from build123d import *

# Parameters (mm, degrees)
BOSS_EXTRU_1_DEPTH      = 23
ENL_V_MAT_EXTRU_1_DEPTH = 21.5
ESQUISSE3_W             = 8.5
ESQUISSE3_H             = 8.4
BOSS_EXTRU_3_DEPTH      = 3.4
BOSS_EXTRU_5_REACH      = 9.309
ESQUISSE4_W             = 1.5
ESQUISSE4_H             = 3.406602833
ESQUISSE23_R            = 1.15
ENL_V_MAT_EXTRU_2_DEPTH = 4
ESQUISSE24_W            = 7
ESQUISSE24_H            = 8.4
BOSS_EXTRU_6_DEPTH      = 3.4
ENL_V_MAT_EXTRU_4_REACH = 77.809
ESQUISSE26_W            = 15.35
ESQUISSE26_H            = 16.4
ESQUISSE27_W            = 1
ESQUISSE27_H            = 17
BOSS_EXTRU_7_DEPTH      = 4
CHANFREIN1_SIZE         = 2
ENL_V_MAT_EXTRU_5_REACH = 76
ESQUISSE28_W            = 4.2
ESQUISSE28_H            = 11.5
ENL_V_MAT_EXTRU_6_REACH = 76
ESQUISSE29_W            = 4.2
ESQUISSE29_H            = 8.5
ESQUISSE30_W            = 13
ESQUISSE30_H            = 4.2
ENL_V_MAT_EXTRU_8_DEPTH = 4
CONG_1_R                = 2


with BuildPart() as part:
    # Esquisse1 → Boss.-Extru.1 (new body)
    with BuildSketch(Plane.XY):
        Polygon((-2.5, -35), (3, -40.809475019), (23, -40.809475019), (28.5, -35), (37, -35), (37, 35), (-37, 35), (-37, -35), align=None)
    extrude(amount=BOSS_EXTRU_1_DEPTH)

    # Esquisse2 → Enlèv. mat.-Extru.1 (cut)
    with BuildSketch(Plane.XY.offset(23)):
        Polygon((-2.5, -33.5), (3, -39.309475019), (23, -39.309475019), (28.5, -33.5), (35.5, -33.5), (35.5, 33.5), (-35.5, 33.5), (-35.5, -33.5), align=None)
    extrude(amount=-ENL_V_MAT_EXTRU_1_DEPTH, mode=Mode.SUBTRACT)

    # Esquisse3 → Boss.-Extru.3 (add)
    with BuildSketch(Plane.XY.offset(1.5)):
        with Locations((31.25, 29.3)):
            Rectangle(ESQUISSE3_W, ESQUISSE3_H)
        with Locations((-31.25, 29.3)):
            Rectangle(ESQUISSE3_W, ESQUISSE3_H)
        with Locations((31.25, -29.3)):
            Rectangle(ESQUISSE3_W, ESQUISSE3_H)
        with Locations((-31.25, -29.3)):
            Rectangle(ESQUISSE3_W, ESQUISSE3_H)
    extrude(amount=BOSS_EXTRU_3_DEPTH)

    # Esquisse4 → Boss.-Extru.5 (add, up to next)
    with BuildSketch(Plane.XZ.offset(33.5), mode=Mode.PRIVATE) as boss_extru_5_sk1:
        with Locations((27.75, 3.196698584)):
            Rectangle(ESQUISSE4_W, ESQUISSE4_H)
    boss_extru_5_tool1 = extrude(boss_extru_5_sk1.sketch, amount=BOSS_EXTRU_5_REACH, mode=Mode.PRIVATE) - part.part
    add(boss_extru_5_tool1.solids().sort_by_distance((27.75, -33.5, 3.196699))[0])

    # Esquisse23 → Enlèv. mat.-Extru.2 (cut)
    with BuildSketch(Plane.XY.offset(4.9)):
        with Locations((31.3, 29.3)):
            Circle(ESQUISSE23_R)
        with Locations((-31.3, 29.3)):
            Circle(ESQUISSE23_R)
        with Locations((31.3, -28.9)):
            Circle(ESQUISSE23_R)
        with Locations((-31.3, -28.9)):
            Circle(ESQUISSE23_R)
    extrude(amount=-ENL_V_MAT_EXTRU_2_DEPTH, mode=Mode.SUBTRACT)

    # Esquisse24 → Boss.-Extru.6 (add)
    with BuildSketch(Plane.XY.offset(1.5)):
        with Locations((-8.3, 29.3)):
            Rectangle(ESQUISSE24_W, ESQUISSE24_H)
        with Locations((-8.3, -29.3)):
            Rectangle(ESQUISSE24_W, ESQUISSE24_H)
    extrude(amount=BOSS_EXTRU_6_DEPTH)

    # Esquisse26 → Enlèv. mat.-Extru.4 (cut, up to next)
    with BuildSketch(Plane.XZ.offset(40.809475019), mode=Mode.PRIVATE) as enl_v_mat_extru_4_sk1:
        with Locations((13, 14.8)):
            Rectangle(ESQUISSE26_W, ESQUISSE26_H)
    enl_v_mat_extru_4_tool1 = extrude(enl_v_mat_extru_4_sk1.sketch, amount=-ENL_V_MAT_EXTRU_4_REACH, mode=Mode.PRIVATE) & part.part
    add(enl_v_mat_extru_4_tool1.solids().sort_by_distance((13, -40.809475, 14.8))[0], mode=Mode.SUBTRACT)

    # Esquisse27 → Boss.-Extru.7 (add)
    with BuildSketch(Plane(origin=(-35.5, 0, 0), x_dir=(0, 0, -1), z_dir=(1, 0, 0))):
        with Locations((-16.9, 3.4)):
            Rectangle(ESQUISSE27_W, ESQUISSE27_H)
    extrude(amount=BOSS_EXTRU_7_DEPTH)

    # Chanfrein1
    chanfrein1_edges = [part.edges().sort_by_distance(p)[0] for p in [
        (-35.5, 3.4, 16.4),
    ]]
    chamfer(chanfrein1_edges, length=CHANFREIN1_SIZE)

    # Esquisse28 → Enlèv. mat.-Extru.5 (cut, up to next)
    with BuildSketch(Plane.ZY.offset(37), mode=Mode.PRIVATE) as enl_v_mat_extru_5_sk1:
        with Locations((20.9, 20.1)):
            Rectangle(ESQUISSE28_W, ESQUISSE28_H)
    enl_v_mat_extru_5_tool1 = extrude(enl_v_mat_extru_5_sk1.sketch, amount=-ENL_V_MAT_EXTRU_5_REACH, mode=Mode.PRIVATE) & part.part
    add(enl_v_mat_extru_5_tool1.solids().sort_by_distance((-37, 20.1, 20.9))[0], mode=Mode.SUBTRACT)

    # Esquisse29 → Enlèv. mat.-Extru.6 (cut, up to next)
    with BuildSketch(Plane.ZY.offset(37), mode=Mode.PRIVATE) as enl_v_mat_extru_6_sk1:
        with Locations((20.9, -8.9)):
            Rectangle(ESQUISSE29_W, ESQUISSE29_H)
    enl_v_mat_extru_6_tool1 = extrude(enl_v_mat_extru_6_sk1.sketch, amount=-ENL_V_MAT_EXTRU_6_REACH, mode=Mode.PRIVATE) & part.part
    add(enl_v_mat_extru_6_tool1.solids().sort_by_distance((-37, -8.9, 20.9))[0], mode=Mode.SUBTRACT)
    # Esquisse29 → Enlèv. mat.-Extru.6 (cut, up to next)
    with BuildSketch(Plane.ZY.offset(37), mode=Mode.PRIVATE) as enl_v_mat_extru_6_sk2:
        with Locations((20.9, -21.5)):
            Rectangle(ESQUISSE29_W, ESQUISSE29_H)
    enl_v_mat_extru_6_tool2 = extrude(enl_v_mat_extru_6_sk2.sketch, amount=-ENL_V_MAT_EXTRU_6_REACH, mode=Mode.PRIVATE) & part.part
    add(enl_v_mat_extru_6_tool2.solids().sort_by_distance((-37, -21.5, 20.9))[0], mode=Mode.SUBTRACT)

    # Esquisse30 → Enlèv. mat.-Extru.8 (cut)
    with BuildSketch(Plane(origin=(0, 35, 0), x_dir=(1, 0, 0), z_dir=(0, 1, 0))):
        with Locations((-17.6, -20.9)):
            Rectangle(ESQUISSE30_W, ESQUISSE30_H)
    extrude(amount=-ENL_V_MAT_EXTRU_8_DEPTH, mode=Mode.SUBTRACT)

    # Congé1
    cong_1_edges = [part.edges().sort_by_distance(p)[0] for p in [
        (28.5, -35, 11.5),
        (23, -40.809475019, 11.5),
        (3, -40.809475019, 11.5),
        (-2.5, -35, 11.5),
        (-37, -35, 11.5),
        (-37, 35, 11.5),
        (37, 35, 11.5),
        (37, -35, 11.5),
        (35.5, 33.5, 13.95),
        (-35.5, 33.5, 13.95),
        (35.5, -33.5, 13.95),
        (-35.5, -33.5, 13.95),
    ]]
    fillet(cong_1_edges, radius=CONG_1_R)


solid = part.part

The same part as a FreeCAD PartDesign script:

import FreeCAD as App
import Part
import Sketcher
Q = App.Units.Quantity


def edges_at(feature, points):
    """Names of the edges that pass closest to the given points."""
    edges = feature.Shape.Edges
    near = lambda p: min(range(len(edges)), key=lambda i: edges[i].distToShape(Part.Vertex(*p))[0])
    return sorted({f"Edge{near(p) + 1}" for p in points})


def add_polygon(sketch, points):
    """Adds a closed chain of lines whose ends are joined by coincident constraints."""
    first, n = sketch.GeometryCount, len(points)
    for a, b in zip(points, points[1:] + points[:1]):
        sketch.addGeometry(Part.LineSegment(App.Vector(*a, 0), App.Vector(*b, 0)), False)
    for i in range(n):
        sketch.addConstraint(Sketcher.Constraint("Coincident", first + i, 2, first + (i + 1) % n, 1))

doc = App.newDocument("Part")
params = doc.addObject("Spreadsheet::Sheet", "Params")
for row, (alias, value) in enumerate([
    ("sketch1_width", "20 mm"),
    ("sketch1_width2", "74 mm"),
    ("sketch1_height", "70 mm"),
    ("sketch1_length", "8 mm"),
    ("sketch1_width3", "8.5 mm"),
    ("pad1_length", "23 mm"),
    ("sketch2_width", "20 mm"),
    ("sketch2_width2", "7 mm"),
    ("sketch2_width3", "71 mm"),
    ("sketch2_width4", "33 mm"),
    ("sketch2_height", "67 mm"),
    ("pocket1_length", "21.5 mm"),
    ("sketch3_width", "8.5 mm"),
    ("sketch3_height", "8.4 mm"),
    ("pad2_length", "3.4 mm"),
    ("sketch4_width", "1.5 mm"),
    ("pad3_length", "1.584402 mm"),
    ("sketch5_diameter", "2.3 mm"),
    ("pocket2_length", "4 mm"),
    ("sketch6_width", "7 mm"),
    ("sketch6_height", "8.4 mm"),
    ("pad4_length", "3.4 mm"),
    ("sketch7_height", "16.4 mm"),
    ("sketch7_width", "15.35 mm"),
    ("sketch8_width", "17 mm"),
    ("sketch8_height", "1 mm"),
    ("pad5_length", "4 mm"),
    ("chamfer_size", "2 mm"),
    ("sketch9_width", "11.5 mm"),
    ("sketch9_height", "4.2 mm"),
    ("sketch10_width", "8.5 mm"),
    ("sketch10_height", "4.2 mm"),
    ("sketch11_width", "8.5 mm"),
    ("sketch11_height", "4.2 mm"),
    ("sketch12_width", "13 mm"),
    ("sketch12_height", "4.2 mm"),
    ("pocket7_length", "4 mm"),
    ("fillet_radius", "2 mm"),
], start=1):
    params.set(f"A{row}", alias)
    params.set(f"B{row}", "=" + value)
    params.setAlias(f"B{row}", alias)

body = doc.addObject("PartDesign::Body", "Body")

sketch1 = doc.addObject("Sketcher::SketchObject", "Sketch")
body.addObject(sketch1)
sketch1.AttachmentSupport = (doc.XY_Plane, [""])
sketch1.MapMode = "FlatFace"
add_polygon(sketch1, [(-2.5, -35), (3, -40.809475), (23, -40.809475), (28.5, -35), (37, -35), (37, 35), (-37, 35), (-37, -35)])
sketch1.addConstraint(Sketcher.Constraint("Horizontal", 1))
sketch1.addConstraint(Sketcher.Constraint("Horizontal", 3))
sketch1.addConstraint(Sketcher.Constraint("Vertical", 4))
sketch1.addConstraint(Sketcher.Constraint("Horizontal", 5))
sketch1.addConstraint(Sketcher.Constraint("Vertical", 6))
sketch1.addConstraint(Sketcher.Constraint("Horizontal", 7))
sketch1.addConstraint(Sketcher.Constraint("Symmetric", 3, 2, 5, 2, -1, 1))
sketch1.addConstraint(Sketcher.Constraint("Horizontal", 3, 2, 6, 2))
sketch1.addConstraint(Sketcher.Constraint("Equal", 0, 2))
sketch1.addConstraint(Sketcher.Constraint("DistanceX", 1, 1, 1, 2, Q("20 mm")))
sketch1.addConstraint(Sketcher.Constraint("DistanceX", 5, 2, 5, 1, Q("74 mm")))
sketch1.addConstraint(Sketcher.Constraint("DistanceY", 4, 1, 4, 2, Q("70 mm")))
sketch1.addConstraint(Sketcher.Constraint("Distance", 0, Q("8 mm")))
sketch1.addConstraint(Sketcher.Constraint("DistanceX", 3, 1, 3, 2, Q("8.5 mm")))
sketch1.addConstraint(Sketcher.Constraint("DistanceX", 7, 1, 7, 2, Q("34.5 mm")))
sketch1.setExpression("Constraints[17]", "Params.sketch1_width")
sketch1.setExpression("Constraints[18]", "Params.sketch1_width2")
sketch1.setExpression("Constraints[19]", "Params.sketch1_height")
sketch1.setExpression("Constraints[20]", "Params.sketch1_length")
sketch1.setExpression("Constraints[21]", "Params.sketch1_width3")
pad1 = doc.addObject("PartDesign::Pad", "Pad")
body.addObject(pad1)
pad1.Profile = sketch1
pad1.setExpression("Length", "Params.pad1_length")

sketch2 = doc.addObject("Sketcher::SketchObject", "Sketch001")
body.addObject(sketch2)
sketch2.AttachmentSupport = (doc.XY_Plane, [""])
sketch2.MapMode = "FlatFace"
sketch2.AttachmentOffset = App.Placement(App.Vector(0, 0, 23), App.Rotation())
add_polygon(sketch2, [(-2.5, -33.5), (3, -39.309475), (23, -39.309475), (28.5, -33.5), (35.5, -33.5), (35.5, 33.5), (-35.5, 33.5), (-35.5, -33.5)])
sketch2.addConstraint(Sketcher.Constraint("Horizontal", 1))
sketch2.addConstraint(Sketcher.Constraint("Horizontal", 3))
sketch2.addConstraint(Sketcher.Constraint("Vertical", 4))
sketch2.addConstraint(Sketcher.Constraint("Horizontal", 5))
sketch2.addConstraint(Sketcher.Constraint("Vertical", 6))
sketch2.addConstraint(Sketcher.Constraint("Horizontal", 7))
sketch2.addConstraint(Sketcher.Constraint("Symmetric", 3, 2, 5, 2, -1, 1))
sketch2.addConstraint(Sketcher.Constraint("Horizontal", 3, 2, 6, 2))
sketch2.addConstraint(Sketcher.Constraint("Equal", 0, 2))
sketch2.addConstraint(Sketcher.Constraint("DistanceX", 1, 1, 1, 2, Q("20 mm")))
sketch2.addConstraint(Sketcher.Constraint("DistanceX", 3, 1, 3, 2, Q("7 mm")))
sketch2.addConstraint(Sketcher.Constraint("DistanceX", 5, 2, 5, 1, Q("71 mm")))
sketch2.addConstraint(Sketcher.Constraint("DistanceX", 7, 1, 7, 2, Q("33 mm")))
sketch2.addConstraint(Sketcher.Constraint("DistanceY", 4, 1, 4, 2, Q("67 mm")))
sketch2.addConstraint(Sketcher.Constraint("Distance", 0, Q("8 mm")))
sketch2.setExpression("Constraints[17]", "Params.sketch2_width")
sketch2.setExpression("Constraints[18]", "Params.sketch2_width2")
sketch2.setExpression("Constraints[19]", "Params.sketch2_width3")
sketch2.setExpression("Constraints[20]", "Params.sketch2_width4")
sketch2.setExpression("Constraints[21]", "Params.sketch2_height")
pocket1 = doc.addObject("PartDesign::Pocket", "Pocket")
body.addObject(pocket1)
pocket1.Profile = sketch2
pocket1.setExpression("Length", "Params.pocket1_length")

sketch3 = doc.addObject("Sketcher::SketchObject", "Sketch002")
body.addObject(sketch3)
sketch3.AttachmentSupport = (doc.XY_Plane, [""])
sketch3.MapMode = "FlatFace"
sketch3.AttachmentOffset = App.Placement(App.Vector(0, 0, 1.5), App.Rotation())
add_polygon(sketch3, [(27, 33.5), (27, 25.1), (35.5, 25.1), (35.5, 33.5)])
add_polygon(sketch3, [(-35.5, 33.5), (-35.5, 25.1), (-27, 25.1), (-27, 33.5)])
add_polygon(sketch3, [(27, -25.1), (27, -33.5), (35.5, -33.5), (35.5, -25.1)])
add_polygon(sketch3, [(-35.5, -25.1), (-35.5, -33.5), (-27, -33.5), (-27, -25.1)])
sketch3.addConstraint(Sketcher.Constraint("Vertical", 0))
sketch3.addConstraint(Sketcher.Constraint("Horizontal", 1))
sketch3.addConstraint(Sketcher.Constraint("Vertical", 2))
sketch3.addConstraint(Sketcher.Constraint("Horizontal", 3))
sketch3.addConstraint(Sketcher.Constraint("Vertical", 4))
sketch3.addConstraint(Sketcher.Constraint("Horizontal", 5))
sketch3.addConstraint(Sketcher.Constraint("Vertical", 6))
sketch3.addConstraint(Sketcher.Constraint("Horizontal", 7))
sketch3.addConstraint(Sketcher.Constraint("Vertical", 8))
sketch3.addConstraint(Sketcher.Constraint("Horizontal", 9))
sketch3.addConstraint(Sketcher.Constraint("Vertical", 10))
sketch3.addConstraint(Sketcher.Constraint("Horizontal", 11))
sketch3.addConstraint(Sketcher.Constraint("Vertical", 12))
sketch3.addConstraint(Sketcher.Constraint("Horizontal", 13))
sketch3.addConstraint(Sketcher.Constraint("Vertical", 14))
sketch3.addConstraint(Sketcher.Constraint("Horizontal", 15))
sketch3.addConstraint(Sketcher.Constraint("Symmetric", 6, 2, 8, 2, -1, 1))
sketch3.addConstraint(Sketcher.Constraint("Symmetric", 4, 2, 10, 2, -1, 1))
sketch3.addConstraint(Sketcher.Constraint("Symmetric", 2, 2, 12, 2, -1, 1))
sketch3.addConstraint(Sketcher.Constraint("Symmetric", 0, 2, 14, 2, -1, 1))
sketch3.addConstraint(Sketcher.Constraint("Symmetric", 1, 2, 4, 2, -2))
sketch3.addConstraint(Sketcher.Constraint("Symmetric", 3, 2, 6, 2, -2))
sketch3.addConstraint(Sketcher.Constraint("DistanceX", 1, 1, 1, 2, Q("8.5 mm")))
sketch3.addConstraint(Sketcher.Constraint("DistanceY", 0, 2, 0, 1, Q("8.4 mm")))
sketch3.addConstraint(Sketcher.Constraint("DistanceX", -1, 1, 0, 2, Q("27 mm")))
sketch3.addConstraint(Sketcher.Constraint("DistanceY", 8, 2, 3, 2, Q("67 mm")))
sketch3.setExpression("Constraints[38]", "Params.sketch3_width")
sketch3.setExpression("Constraints[39]", "Params.sketch3_height")
pad2 = doc.addObject("PartDesign::Pad", "Pad001")
body.addObject(pad2)
pad2.Profile = sketch3
pad2.setExpression("Length", "Params.pad2_length")

sketch4 = doc.addObject("Sketcher::SketchObject", "Sketch003")
body.addObject(sketch4)
sketch4.AttachmentSupport = (doc.XZ_Plane, [""])
sketch4.MapMode = "FlatFace"
sketch4.AttachmentOffset = App.Placement(App.Vector(0, 0, 33.5), App.Rotation())
add_polygon(sketch4, [(27, 4.9), (27, 1.493397), (28.5, 1.493397), (28.5, 4.9)])
sketch4.addConstraint(Sketcher.Constraint("Vertical", 0))
sketch4.addConstraint(Sketcher.Constraint("Horizontal", 1))
sketch4.addConstraint(Sketcher.Constraint("Vertical", 2))
sketch4.addConstraint(Sketcher.Constraint("Horizontal", 3))
sketch4.addConstraint(Sketcher.Constraint("DistanceX", 1, 1, 1, 2, Q("1.5 mm")))
sketch4.addConstraint(Sketcher.Constraint("DistanceX", -1, 1, 0, 2, Q("27 mm")))
sketch4.addConstraint(Sketcher.Constraint("DistanceY", -1, 1, 2, 2, Q("4.9 mm")))
sketch4.addConstraint(Sketcher.Constraint("DistanceY", 0, 2, 0, 1, Q("3.406603 mm")))
sketch4.setExpression("Constraints[8]", "Params.sketch4_width")
pad3 = doc.addObject("PartDesign::Pad", "Pad002")
body.addObject(pad3)
pad3.Profile = sketch4
pad3.setExpression("Length", "Params.pad3_length")

sketch5 = doc.addObject("Sketcher::SketchObject", "Sketch004")
body.addObject(sketch5)
sketch5.AttachmentSupport = (doc.XY_Plane, [""])
sketch5.MapMode = "FlatFace"
sketch5.AttachmentOffset = App.Placement(App.Vector(0, 0, 4.9), App.Rotation())
sketch5.addGeometry(Part.Circle(App.Vector(31.3, 29.3, 0), App.Vector(0, 0, 1), 1.15), False)
sketch5.addGeometry(Part.Circle(App.Vector(-31.3, 29.3, 0), App.Vector(0, 0, 1), 1.15), False)
sketch5.addGeometry(Part.Circle(App.Vector(31.3, -28.9, 0), App.Vector(0, 0, 1), 1.15), False)
sketch5.addGeometry(Part.Circle(App.Vector(-31.3, -28.9, 0), App.Vector(0, 0, 1), 1.15), False)
sketch5.addConstraint(Sketcher.Constraint("Equal", 0, 1))
sketch5.addConstraint(Sketcher.Constraint("Equal", 1, 2))
sketch5.addConstraint(Sketcher.Constraint("Equal", 2, 3))
sketch5.addConstraint(Sketcher.Constraint("Symmetric", 0, 3, 1, 3, -2))
sketch5.addConstraint(Sketcher.Constraint("Symmetric", 2, 3, 3, 3, -2))
sketch5.addConstraint(Sketcher.Constraint("Vertical", 0, 3, 2, 3))
sketch5.addConstraint(Sketcher.Constraint("Diameter", 0, Q("2.3 mm")))
sketch5.addConstraint(Sketcher.Constraint("DistanceX", -1, 1, 0, 3, Q("31.3 mm")))
sketch5.addConstraint(Sketcher.Constraint("DistanceY", -1, 1, 0, 3, Q("29.3 mm")))
sketch5.addConstraint(Sketcher.Constraint("DistanceY", 2, 3, -1, 1, Q("28.9 mm")))
sketch5.setExpression("Constraints[6]", "Params.sketch5_diameter")
pocket2 = doc.addObject("PartDesign::Pocket", "Pocket001")
body.addObject(pocket2)
pocket2.Profile = sketch5
pocket2.setExpression("Length", "Params.pocket2_length")

sketch6 = doc.addObject("Sketcher::SketchObject", "Sketch005")
body.addObject(sketch6)
sketch6.AttachmentSupport = (doc.XY_Plane, [""])
sketch6.MapMode = "FlatFace"
sketch6.AttachmentOffset = App.Placement(App.Vector(0, 0, 1.5), App.Rotation())
add_polygon(sketch6, [(-11.8, 33.5), (-11.8, 25.1), (-4.8, 25.1), (-4.8, 33.5)])
add_polygon(sketch6, [(-11.8, -25.1), (-11.8, -33.5), (-4.8, -33.5), (-4.8, -25.1)])
sketch6.addConstraint(Sketcher.Constraint("Vertical", 0))
sketch6.addConstraint(Sketcher.Constraint("Horizontal", 1))
sketch6.addConstraint(Sketcher.Constraint("Vertical", 2))
sketch6.addConstraint(Sketcher.Constraint("Horizontal", 3))
sketch6.addConstraint(Sketcher.Constraint("Vertical", 4))
sketch6.addConstraint(Sketcher.Constraint("Horizontal", 5))
sketch6.addConstraint(Sketcher.Constraint("Vertical", 6))
sketch6.addConstraint(Sketcher.Constraint("Horizontal", 7))
sketch6.addConstraint(Sketcher.Constraint("Symmetric", 3, 2, 4, 2, -1))
sketch6.addConstraint(Sketcher.Constraint("Symmetric", 1, 2, 6, 2, -1))
sketch6.addConstraint(Sketcher.Constraint("DistanceX", 1, 1, 1, 2, Q("7 mm")))
sketch6.addConstraint(Sketcher.Constraint("DistanceY", 0, 2, 0, 1, Q("8.4 mm")))
sketch6.addConstraint(Sketcher.Constraint("DistanceY", 4, 2, 3, 2, Q("67 mm")))
sketch6.addConstraint(Sketcher.Constraint("DistanceX", 0, 2, -1, 1, Q("11.8 mm")))
sketch6.setExpression("Constraints[18]", "Params.sketch6_width")
sketch6.setExpression("Constraints[19]", "Params.sketch6_height")
pad4 = doc.addObject("PartDesign::Pad", "Pad003")
body.addObject(pad4)
pad4.Profile = sketch6
pad4.setExpression("Length", "Params.pad4_length")

sketch7 = doc.addObject("Sketcher::SketchObject", "Sketch006")
body.addObject(sketch7)
sketch7.AttachmentSupport = (doc.XZ_Plane, [""])
sketch7.MapMode = "FlatFace"
sketch7.AttachmentOffset = App.Placement(App.Vector(0, 0, 40.809475), App.Rotation())
add_polygon(sketch7, [(5.325, 23), (5.325, 6.6), (20.675, 6.6), (20.675, 23)])
sketch7.addConstraint(Sketcher.Constraint("Vertical", 0))
sketch7.addConstraint(Sketcher.Constraint("Horizontal", 1))
sketch7.addConstraint(Sketcher.Constraint("Vertical", 2))
sketch7.addConstraint(Sketcher.Constraint("Horizontal", 3))
sketch7.addConstraint(Sketcher.Constraint("DistanceY", 0, 2, 0, 1, Q("16.4 mm")))
sketch7.addConstraint(Sketcher.Constraint("DistanceY", -1, 1, 2, 2, Q("23 mm")))
sketch7.addConstraint(Sketcher.Constraint("DistanceX", 1, 1, 1, 2, Q("15.35 mm")))
sketch7.addConstraint(Sketcher.Constraint("DistanceX", -1, 1, 0, 2, Q("5.325 mm")))
sketch7.setExpression("Constraints[8]", "Params.sketch7_height")
sketch7.setExpression("Constraints[10]", "Params.sketch7_width")
pocket3 = doc.addObject("PartDesign::Pocket", "Pocket002")
body.addObject(pocket3)
pocket3.Profile = sketch7
pocket3.Type = "UpToFirst"

sketch8 = doc.addObject("Sketcher::SketchObject", "Sketch007")
body.addObject(sketch8)
sketch8.AttachmentSupport = (doc.YZ_Plane, [""])
sketch8.MapMode = "FlatFace"
sketch8.AttachmentOffset = App.Placement(App.Vector(0, 0, -35.5), App.Rotation())
add_polygon(sketch8, [(11.9, 17.4), (-5.1, 17.4), (-5.1, 16.4), (11.9, 16.4)])
sketch8.addConstraint(Sketcher.Constraint("Horizontal", 0))
sketch8.addConstraint(Sketcher.Constraint("Vertical", 1))
sketch8.addConstraint(Sketcher.Constraint("Horizontal", 2))
sketch8.addConstraint(Sketcher.Constraint("Vertical", 3))
sketch8.addConstraint(Sketcher.Constraint("DistanceX", 0, 2, 0, 1, Q("17 mm")))
sketch8.addConstraint(Sketcher.Constraint("DistanceY", 1, 2, 1, 1, Q("1 mm")))
sketch8.addConstraint(Sketcher.Constraint("DistanceX", 0, 2, -1, 1, Q("5.1 mm")))
sketch8.addConstraint(Sketcher.Constraint("DistanceY", -1, 1, 0, 2, Q("17.4 mm")))
sketch8.setExpression("Constraints[8]", "Params.sketch8_width")
sketch8.setExpression("Constraints[9]", "Params.sketch8_height")
pad5 = doc.addObject("PartDesign::Pad", "Pad004")
body.addObject(pad5)
pad5.Profile = sketch8
pad5.setExpression("Length", "Params.pad5_length")
doc.recompute()

chamfer = doc.addObject("PartDesign::Chamfer", "Chamfer")
body.addObject(chamfer)
chamfer.Base = (pad5, edges_at(pad5, [(-35.5, 3.4, 16.4)]))
chamfer.setExpression("Size", "Params.chamfer_size")

sketch9 = doc.addObject("Sketcher::SketchObject", "Sketch008")
body.addObject(sketch9)
sketch9.AttachmentSupport = (doc.YZ_Plane, [""])
sketch9.MapMode = "FlatFace"
sketch9.AttachmentOffset = App.Placement(App.Vector(0, 0, -37), App.Rotation())
add_polygon(sketch9, [(25.85, 18.8), (14.35, 18.8), (14.35, 23), (25.85, 23)])
sketch9.addConstraint(Sketcher.Constraint("Horizontal", 0))
sketch9.addConstraint(Sketcher.Constraint("Vertical", 1))
sketch9.addConstraint(Sketcher.Constraint("Horizontal", 2))
sketch9.addConstraint(Sketcher.Constraint("Vertical", 3))
sketch9.addConstraint(Sketcher.Constraint("DistanceX", 0, 2, 0, 1, Q("11.5 mm")))
sketch9.addConstraint(Sketcher.Constraint("DistanceY", 1, 1, 1, 2, Q("4.2 mm")))
sketch9.addConstraint(Sketcher.Constraint("DistanceY", -1, 1, 1, 2, Q("23 mm")))
sketch9.addConstraint(Sketcher.Constraint("DistanceX", -1, 1, 0, 2, Q("14.35 mm")))
sketch9.setExpression("Constraints[8]", "Params.sketch9_width")
sketch9.setExpression("Constraints[9]", "Params.sketch9_height")
pocket4 = doc.addObject("PartDesign::Pocket", "Pocket003")
body.addObject(pocket4)
pocket4.Profile = sketch9
pocket4.Type = "UpToFirst"
pocket4.Reversed = True

sketch10 = doc.addObject("Sketcher::SketchObject", "Sketch009")
body.addObject(sketch10)
sketch10.AttachmentSupport = (doc.YZ_Plane, [""])
sketch10.MapMode = "FlatFace"
sketch10.AttachmentOffset = App.Placement(App.Vector(0, 0, -37), App.Rotation())
add_polygon(sketch10, [(-4.65, 18.8), (-13.15, 18.8), (-13.15, 23), (-4.65, 23)])
sketch10.addConstraint(Sketcher.Constraint("Horizontal", 0))
sketch10.addConstraint(Sketcher.Constraint("Vertical", 1))
sketch10.addConstraint(Sketcher.Constraint("Horizontal", 2))
sketch10.addConstraint(Sketcher.Constraint("Vertical", 3))
sketch10.addConstraint(Sketcher.Constraint("DistanceX", 0, 2, 0, 1, Q("8.5 mm")))
sketch10.addConstraint(Sketcher.Constraint("DistanceY", 1, 1, 1, 2, Q("4.2 mm")))
sketch10.addConstraint(Sketcher.Constraint("DistanceY", -1, 1, 1, 2, Q("23 mm")))
sketch10.addConstraint(Sketcher.Constraint("DistanceX", 0, 2, -1, 1, Q("13.15 mm")))
sketch10.setExpression("Constraints[8]", "Params.sketch10_width")
sketch10.setExpression("Constraints[9]", "Params.sketch10_height")
pocket5 = doc.addObject("PartDesign::Pocket", "Pocket004")
body.addObject(pocket5)
pocket5.Profile = sketch10
pocket5.Type = "UpToFirst"
pocket5.Reversed = True

sketch11 = doc.addObject("Sketcher::SketchObject", "Sketch010")
body.addObject(sketch11)
sketch11.AttachmentSupport = (doc.YZ_Plane, [""])
sketch11.MapMode = "FlatFace"
sketch11.AttachmentOffset = App.Placement(App.Vector(0, 0, -37), App.Rotation())
add_polygon(sketch11, [(-17.25, 18.8), (-25.75, 18.8), (-25.75, 23), (-17.25, 23)])
sketch11.addConstraint(Sketcher.Constraint("Horizontal", 0))
sketch11.addConstraint(Sketcher.Constraint("Vertical", 1))
sketch11.addConstraint(Sketcher.Constraint("Horizontal", 2))
sketch11.addConstraint(Sketcher.Constraint("Vertical", 3))
sketch11.addConstraint(Sketcher.Constraint("DistanceX", 0, 2, 0, 1, Q("8.5 mm")))
sketch11.addConstraint(Sketcher.Constraint("DistanceY", 1, 1, 1, 2, Q("4.2 mm")))
sketch11.addConstraint(Sketcher.Constraint("DistanceY", -1, 1, 1, 2, Q("23 mm")))
sketch11.addConstraint(Sketcher.Constraint("DistanceX", 0, 2, -1, 1, Q("25.75 mm")))
sketch11.setExpression("Constraints[8]", "Params.sketch11_width")
sketch11.setExpression("Constraints[9]", "Params.sketch11_height")
pocket6 = doc.addObject("PartDesign::Pocket", "Pocket005")
body.addObject(pocket6)
pocket6.Profile = sketch11
pocket6.Type = "UpToFirst"
pocket6.Reversed = True

sketch12 = doc.addObject("Sketcher::SketchObject", "Sketch011")
body.addObject(sketch12)
sketch12.AttachmentSupport = (doc.XZ_Plane, [""])
sketch12.MapMode = "FlatFace"
sketch12.AttachmentOffset = App.Placement(App.Vector(0, 0, -35), App.Rotation())
add_polygon(sketch12, [(-24.1, 18.8), (-24.1, 23), (-11.1, 23), (-11.1, 18.8)])
sketch12.addConstraint(Sketcher.Constraint("Vertical", 0))
sketch12.addConstraint(Sketcher.Constraint("Horizontal", 1))
sketch12.addConstraint(Sketcher.Constraint("Vertical", 2))
sketch12.addConstraint(Sketcher.Constraint("Horizontal", 3))
sketch12.addConstraint(Sketcher.Constraint("DistanceX", 1, 1, 1, 2, Q("13 mm")))
sketch12.addConstraint(Sketcher.Constraint("DistanceY", 0, 1, 0, 2, Q("4.2 mm")))
sketch12.addConstraint(Sketcher.Constraint("DistanceY", -1, 1, 0, 2, Q("23 mm")))
sketch12.addConstraint(Sketcher.Constraint("DistanceX", 0, 2, -1, 1, Q("24.1 mm")))
sketch12.setExpression("Constraints[8]", "Params.sketch12_width")
sketch12.setExpression("Constraints[9]", "Params.sketch12_height")
pocket7 = doc.addObject("PartDesign::Pocket", "Pocket006")
body.addObject(pocket7)
pocket7.Profile = sketch12
pocket7.setExpression("Length", "Params.pocket7_length")
pocket7.Reversed = True
doc.recompute()

fillet = doc.addObject("PartDesign::Fillet", "Fillet")
body.addObject(fillet)
fillet.Base = (pocket7, edges_at(pocket7, [
    (28.5, -35, 11.5),
    (23, -40.809, 11.5),
    (3, -40.809, 11.5),
    (-2.5, -35, 11.5),
    (-37, -35, 11.5),
    (-37, 35, 11.5),
    (37, 35, 11.5),
    (37, -35, 11.5),
    (35.5, 33.5, 13.95),
    (-35.5, 33.5, 13.95),
    (35.5, -33.5, 13.95),
    (-35.5, -33.5, 13.95),
]))
fillet.setExpression("Radius", "Params.fillet_radius")

doc.recompute()
